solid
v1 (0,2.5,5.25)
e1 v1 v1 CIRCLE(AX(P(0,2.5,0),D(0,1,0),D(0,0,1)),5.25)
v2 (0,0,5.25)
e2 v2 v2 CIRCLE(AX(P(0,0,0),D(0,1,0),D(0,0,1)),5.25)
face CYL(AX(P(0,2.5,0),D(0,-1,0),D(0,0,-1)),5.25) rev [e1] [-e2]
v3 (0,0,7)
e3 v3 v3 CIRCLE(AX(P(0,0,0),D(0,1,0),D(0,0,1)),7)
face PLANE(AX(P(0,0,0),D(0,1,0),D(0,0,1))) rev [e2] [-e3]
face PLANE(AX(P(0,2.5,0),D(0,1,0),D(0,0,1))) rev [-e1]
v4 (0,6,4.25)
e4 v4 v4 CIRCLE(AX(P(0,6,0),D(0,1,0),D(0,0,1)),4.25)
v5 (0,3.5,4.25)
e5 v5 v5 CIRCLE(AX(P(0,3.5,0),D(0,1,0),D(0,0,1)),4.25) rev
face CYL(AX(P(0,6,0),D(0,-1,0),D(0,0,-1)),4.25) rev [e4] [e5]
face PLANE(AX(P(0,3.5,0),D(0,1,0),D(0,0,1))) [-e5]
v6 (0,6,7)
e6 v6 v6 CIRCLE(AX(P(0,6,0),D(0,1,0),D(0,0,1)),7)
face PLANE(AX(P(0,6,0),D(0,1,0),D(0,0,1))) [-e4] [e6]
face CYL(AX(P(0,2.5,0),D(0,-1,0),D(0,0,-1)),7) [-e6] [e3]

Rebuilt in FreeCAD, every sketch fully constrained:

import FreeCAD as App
import Part
import Sketcher

doc = App.newDocument("Part")
body = doc.addObject("PartDesign::Body", "Body")

sketch1 = doc.addObject("Sketcher::SketchObject", "Sketch")
body.addObject(sketch1)
sketch1.AttachmentSupport = (doc.XZ_Plane, [""])
sketch1.MapMode = "FlatFace"
sketch1.addGeometry([
    Part.Circle(App.Vector(0, 0, 0), App.Vector(0, 0, 1), 7),
    Part.Circle(App.Vector(0, 0, 0), App.Vector(0, 0, 1), 5.25),
], False)
sketch1.addConstraint([
    Sketcher.Constraint("Coincident", 0, 3, -1, 1),
    Sketcher.Constraint("Coincident", 1, 3, -1, 1),
    Sketcher.Constraint("Diameter", 0, 14.0),
    Sketcher.Constraint("Diameter", 1, 10.5),
])
pad1 = doc.addObject("PartDesign::Pad", "Pad")
body.addObject(pad1)
pad1.Profile = sketch1
pad1.Length = 2.5
pad1.Reversed = True

sketch2 = doc.addObject("Sketcher::SketchObject", "Sketch001")
body.addObject(sketch2)
sketch2.AttachmentSupport = (doc.XZ_Plane, [""])
sketch2.MapMode = "FlatFace"
sketch2.AttachmentOffset = App.Placement(App.Vector(0, 0, -2.5), App.Rotation())
sketch2.addGeometry(Part.Circle(App.Vector(0, 0, 0), App.Vector(0, 0, 1), 7), False)
sketch2.addConstraint([
    Sketcher.Constraint("Coincident", 0, 3, -1, 1),
    Sketcher.Constraint("Diameter", 0, 14.0),
])
pad2 = doc.addObject("PartDesign::Pad", "Pad001")
body.addObject(pad2)
pad2.Profile = sketch2
pad2.Length = 1
pad2.Reversed = True

sketch3 = doc.addObject("Sketcher::SketchObject", "Sketch002")
body.addObject(sketch3)
sketch3.AttachmentSupport = (doc.XZ_Plane, [""])
sketch3.MapMode = "FlatFace"
sketch3.AttachmentOffset = App.Placement(App.Vector(0, 0, -3.5), App.Rotation())
sketch3.addGeometry([
    Part.Circle(App.Vector(0, 0, 0), App.Vector(0, 0, 1), 7),
    Part.Circle(App.Vector(0, 0, 0), App.Vector(0, 0, 1), 4.25),
], False)
sketch3.addConstraint([
    Sketcher.Constraint("Coincident", 0, 3, -1, 1),
    Sketcher.Constraint("Coincident", 1, 3, -1, 1),
    Sketcher.Constraint("Diameter", 0, 14.0),
    Sketcher.Constraint("Diameter", 1, 8.5),
])
pad3 = doc.addObject("PartDesign::Pad", "Pad002")
body.addObject(pad3)
pad3.Profile = sketch3
pad3.Length = 2.5
pad3.Reversed = True

doc.recompute()
